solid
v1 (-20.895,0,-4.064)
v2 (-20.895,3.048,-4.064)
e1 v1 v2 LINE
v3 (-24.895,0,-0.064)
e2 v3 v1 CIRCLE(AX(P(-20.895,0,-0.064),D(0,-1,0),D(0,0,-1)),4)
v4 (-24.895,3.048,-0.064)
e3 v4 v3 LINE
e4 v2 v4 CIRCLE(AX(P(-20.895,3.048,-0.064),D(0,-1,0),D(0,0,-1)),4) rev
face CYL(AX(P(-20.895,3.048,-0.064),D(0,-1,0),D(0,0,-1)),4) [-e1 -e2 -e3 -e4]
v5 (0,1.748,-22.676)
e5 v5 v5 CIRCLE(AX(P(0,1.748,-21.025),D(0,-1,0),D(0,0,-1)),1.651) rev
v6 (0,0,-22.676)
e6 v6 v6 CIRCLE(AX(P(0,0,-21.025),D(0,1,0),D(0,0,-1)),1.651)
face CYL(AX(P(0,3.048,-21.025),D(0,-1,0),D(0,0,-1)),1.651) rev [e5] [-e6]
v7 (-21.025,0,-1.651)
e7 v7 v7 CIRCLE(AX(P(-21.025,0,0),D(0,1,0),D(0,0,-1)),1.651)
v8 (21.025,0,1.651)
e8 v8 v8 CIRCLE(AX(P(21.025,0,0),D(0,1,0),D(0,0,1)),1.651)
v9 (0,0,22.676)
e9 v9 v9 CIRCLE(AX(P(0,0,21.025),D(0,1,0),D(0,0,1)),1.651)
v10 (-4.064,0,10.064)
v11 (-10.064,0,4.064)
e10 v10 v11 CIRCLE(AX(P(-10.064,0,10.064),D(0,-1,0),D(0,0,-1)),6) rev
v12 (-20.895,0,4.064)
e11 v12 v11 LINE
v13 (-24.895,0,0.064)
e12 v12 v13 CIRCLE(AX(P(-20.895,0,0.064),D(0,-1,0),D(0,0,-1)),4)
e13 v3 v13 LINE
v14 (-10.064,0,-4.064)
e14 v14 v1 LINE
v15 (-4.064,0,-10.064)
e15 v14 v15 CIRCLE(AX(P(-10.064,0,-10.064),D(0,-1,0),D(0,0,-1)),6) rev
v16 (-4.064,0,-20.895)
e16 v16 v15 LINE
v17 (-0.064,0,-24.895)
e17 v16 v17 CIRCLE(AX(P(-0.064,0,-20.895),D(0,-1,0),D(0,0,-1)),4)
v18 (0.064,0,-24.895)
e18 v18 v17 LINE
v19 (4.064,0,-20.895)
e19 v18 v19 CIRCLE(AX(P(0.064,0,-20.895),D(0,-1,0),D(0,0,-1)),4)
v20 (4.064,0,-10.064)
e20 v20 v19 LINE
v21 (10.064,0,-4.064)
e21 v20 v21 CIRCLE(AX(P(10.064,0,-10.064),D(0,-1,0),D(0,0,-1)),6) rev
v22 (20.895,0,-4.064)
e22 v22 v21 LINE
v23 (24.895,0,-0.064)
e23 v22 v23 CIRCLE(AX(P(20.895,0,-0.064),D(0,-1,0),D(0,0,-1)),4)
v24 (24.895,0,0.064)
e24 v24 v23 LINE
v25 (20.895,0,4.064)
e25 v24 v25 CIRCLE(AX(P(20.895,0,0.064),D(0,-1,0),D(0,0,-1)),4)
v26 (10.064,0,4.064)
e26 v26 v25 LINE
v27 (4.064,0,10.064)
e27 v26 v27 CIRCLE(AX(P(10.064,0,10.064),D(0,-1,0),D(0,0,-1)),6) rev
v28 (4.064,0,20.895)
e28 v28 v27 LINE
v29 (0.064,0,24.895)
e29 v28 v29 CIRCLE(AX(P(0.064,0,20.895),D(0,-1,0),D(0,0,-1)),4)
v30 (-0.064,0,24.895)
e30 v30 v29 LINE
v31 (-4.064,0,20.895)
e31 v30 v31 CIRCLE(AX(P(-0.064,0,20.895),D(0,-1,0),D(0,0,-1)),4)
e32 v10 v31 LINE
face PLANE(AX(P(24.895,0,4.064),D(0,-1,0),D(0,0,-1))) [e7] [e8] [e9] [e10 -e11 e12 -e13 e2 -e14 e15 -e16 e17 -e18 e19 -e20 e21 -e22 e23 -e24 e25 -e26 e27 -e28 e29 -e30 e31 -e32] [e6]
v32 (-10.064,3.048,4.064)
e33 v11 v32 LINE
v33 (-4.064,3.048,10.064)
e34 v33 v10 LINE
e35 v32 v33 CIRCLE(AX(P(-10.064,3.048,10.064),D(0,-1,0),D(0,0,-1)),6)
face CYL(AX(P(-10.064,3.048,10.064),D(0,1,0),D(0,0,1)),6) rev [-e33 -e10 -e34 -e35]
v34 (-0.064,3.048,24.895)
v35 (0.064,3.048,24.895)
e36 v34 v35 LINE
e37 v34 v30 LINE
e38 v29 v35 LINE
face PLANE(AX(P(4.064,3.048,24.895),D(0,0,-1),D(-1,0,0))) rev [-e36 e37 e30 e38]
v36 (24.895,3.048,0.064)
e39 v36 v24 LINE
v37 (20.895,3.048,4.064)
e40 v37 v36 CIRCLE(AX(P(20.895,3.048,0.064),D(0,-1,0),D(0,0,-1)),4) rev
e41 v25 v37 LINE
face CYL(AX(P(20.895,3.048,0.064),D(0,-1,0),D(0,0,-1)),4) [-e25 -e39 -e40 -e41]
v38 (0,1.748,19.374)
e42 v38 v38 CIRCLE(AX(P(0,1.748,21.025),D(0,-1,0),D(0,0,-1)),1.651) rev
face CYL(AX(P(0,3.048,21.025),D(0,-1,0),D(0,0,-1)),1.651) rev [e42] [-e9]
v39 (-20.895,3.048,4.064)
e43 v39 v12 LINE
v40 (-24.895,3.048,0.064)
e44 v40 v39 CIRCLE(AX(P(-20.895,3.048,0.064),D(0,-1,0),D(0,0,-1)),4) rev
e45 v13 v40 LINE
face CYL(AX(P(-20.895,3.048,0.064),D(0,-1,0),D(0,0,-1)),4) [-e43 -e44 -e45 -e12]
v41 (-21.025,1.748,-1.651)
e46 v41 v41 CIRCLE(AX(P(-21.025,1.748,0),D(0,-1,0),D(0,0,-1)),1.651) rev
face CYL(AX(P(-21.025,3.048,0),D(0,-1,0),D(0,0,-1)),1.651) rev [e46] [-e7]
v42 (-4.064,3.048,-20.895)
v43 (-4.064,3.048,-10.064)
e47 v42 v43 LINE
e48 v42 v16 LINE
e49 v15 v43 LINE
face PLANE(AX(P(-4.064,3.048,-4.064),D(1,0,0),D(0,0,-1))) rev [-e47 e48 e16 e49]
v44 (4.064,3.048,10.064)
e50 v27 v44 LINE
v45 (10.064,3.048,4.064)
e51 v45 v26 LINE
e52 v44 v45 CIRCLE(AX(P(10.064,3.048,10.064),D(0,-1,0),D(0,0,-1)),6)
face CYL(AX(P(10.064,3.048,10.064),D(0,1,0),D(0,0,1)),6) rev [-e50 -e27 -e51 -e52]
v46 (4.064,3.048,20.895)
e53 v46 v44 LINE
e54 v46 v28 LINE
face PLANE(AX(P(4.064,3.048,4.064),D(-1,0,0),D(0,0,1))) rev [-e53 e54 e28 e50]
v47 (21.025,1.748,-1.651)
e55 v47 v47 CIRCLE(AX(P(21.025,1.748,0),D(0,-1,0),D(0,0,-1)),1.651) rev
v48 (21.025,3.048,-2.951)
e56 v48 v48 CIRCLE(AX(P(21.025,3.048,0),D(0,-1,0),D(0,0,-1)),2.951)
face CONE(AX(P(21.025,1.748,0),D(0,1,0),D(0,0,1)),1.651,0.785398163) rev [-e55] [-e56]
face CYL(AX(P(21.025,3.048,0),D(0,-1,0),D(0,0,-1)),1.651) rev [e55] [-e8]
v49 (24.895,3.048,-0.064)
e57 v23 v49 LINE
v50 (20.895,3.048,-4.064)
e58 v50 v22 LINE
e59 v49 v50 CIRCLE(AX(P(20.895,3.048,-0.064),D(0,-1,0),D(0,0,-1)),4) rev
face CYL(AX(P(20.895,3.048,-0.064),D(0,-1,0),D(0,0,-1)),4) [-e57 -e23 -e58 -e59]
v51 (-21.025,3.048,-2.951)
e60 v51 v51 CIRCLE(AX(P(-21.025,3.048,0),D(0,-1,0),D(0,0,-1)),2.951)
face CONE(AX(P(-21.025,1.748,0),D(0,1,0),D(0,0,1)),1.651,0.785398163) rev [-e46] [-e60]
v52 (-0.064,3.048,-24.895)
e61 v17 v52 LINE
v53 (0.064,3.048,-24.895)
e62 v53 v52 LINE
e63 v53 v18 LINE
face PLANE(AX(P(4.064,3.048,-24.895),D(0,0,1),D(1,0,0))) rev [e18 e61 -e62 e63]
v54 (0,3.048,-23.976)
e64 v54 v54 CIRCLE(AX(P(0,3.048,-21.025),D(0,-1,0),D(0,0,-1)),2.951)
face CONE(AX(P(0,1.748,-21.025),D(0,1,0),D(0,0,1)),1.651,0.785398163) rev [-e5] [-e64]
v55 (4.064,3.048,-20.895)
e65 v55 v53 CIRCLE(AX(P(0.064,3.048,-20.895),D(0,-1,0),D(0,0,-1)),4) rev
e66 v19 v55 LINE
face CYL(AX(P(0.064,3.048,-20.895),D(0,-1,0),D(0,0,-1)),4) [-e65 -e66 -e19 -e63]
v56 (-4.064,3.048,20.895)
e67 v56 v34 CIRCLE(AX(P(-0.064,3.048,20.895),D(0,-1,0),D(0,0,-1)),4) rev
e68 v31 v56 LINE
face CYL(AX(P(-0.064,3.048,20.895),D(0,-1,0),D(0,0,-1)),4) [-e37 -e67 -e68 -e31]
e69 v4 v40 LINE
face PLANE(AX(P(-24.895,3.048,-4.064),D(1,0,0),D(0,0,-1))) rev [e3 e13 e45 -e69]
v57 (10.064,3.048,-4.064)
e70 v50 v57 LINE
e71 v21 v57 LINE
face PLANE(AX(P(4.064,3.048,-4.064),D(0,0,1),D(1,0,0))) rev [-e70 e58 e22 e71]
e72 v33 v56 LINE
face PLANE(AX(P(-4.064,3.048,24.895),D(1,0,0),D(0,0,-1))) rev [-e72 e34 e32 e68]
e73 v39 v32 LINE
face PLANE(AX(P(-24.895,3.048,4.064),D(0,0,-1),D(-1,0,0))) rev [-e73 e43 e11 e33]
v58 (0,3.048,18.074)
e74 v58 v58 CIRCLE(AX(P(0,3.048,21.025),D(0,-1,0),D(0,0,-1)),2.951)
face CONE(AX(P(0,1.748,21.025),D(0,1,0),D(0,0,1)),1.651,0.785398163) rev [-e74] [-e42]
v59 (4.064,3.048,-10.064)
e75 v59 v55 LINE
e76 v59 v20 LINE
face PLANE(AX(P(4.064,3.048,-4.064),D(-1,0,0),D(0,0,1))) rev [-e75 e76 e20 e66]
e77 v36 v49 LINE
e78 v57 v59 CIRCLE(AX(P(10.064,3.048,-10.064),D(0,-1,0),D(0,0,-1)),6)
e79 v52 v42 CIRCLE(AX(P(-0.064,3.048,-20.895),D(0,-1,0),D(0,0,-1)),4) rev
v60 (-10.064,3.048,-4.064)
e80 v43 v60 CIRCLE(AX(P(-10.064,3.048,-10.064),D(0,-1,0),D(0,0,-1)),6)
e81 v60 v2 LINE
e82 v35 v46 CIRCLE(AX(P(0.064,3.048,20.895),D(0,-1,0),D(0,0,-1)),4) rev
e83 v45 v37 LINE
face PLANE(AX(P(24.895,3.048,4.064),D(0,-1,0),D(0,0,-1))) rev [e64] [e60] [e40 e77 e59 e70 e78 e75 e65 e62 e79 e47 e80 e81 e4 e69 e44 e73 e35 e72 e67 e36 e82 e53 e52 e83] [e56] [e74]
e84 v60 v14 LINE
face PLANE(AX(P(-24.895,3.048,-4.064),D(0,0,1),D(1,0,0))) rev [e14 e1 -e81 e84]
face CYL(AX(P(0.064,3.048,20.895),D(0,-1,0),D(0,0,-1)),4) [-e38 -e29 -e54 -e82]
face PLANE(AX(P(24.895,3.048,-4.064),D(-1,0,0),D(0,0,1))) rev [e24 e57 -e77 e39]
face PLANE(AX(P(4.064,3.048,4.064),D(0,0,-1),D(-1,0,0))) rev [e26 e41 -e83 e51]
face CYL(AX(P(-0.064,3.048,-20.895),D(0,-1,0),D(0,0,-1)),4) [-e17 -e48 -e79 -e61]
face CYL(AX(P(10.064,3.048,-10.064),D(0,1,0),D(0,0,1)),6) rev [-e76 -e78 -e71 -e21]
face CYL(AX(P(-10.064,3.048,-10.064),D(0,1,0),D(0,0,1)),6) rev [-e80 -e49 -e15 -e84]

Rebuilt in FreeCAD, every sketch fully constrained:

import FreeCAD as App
import Part
import Sketcher

V = App.Vector


def edges_at(feature, points):
    """Names of the edges that pass closest to the given points."""
    edges = feature.Shape.Edges
    near = lambda p: min(range(len(edges)), key=lambda i: edges[i].distToShape(Part.Vertex(*p))[0])
    return sorted({f"Edge{near(p) + 1}" for p in points})

doc = App.newDocument("Part")
params = doc.addObject("Spreadsheet::Sheet", "Params")
for row, (alias, value) in enumerate([
    ("pad1_length", "3.048 mm"),
    ("fillet_radius", "4 mm"),
    ("chamfer_size", "1.3 mm"),
    ("fillet2_radius", "6 mm"),
], start=1):
    params.set(f"A{row}", alias)
    params.set(f"B{row}", "=" + value)
    params.setAlias(f"B{row}", alias)

body = doc.addObject("PartDesign::Body", "Body")

# Sketch on XZ plane
sketch1 = body.newObject("Sketcher::SketchObject", "Sketch")
sketch1.AttachmentSupport = (doc.getObject("XZ_Plane"), [""])
sketch1.MapMode = "FlatFace"
sketch1.addGeometry([
    Part.LineSegment(V(-4.064, -4.064, 0), V(-24.895, -4.064, 0)),  # 0
    Part.LineSegment(V(-24.895, -4.064, 0), V(-24.895, 4.064, 0)),  # 1
    Part.LineSegment(V(-24.895, 4.064, 0), V(-4.064, 4.064, 0)),  # 2
    Part.LineSegment(V(-4.064, 4.064, 0), V(-4.064, 24.895, 0)),  # 3
    Part.LineSegment(V(-4.064, 24.895, 0), V(4.064, 24.895, 0)),  # 4
    Part.LineSegment(V(4.064, 24.895, 0), V(4.064, 4.064, 0)),  # 5
    Part.LineSegment(V(4.064, 4.064, 0), V(24.895, 4.064, 0)),  # 6
    Part.LineSegment(V(24.895, 4.064, 0), V(24.895, -4.064, 0)),  # 7
    Part.LineSegment(V(24.895, -4.064, 0), V(4.064, -4.064, 0)),  # 8
    Part.LineSegment(V(4.064, -4.064, 0), V(4.064, -24.895, 0)),  # 9
    Part.LineSegment(V(4.064, -24.895, 0), V(-4.064, -24.895, 0)),  # 10
    Part.LineSegment(V(-4.064, -24.895, 0), V(-4.064, -4.064, 0)),  # 11
    Part.Circle(V(0, 21.025, 0), V(0, 0, 1), 1.651),  # 12
    Part.Circle(V(21.025, 0, 0), V(0, 0, 1), 1.651),  # 13
    Part.Circle(V(-21.025, 0, 0), V(0, 0, 1), 1.651),  # 14
    Part.Circle(V(0, -21.025, 0), V(0, 0, 1), 1.651),  # 15
], False)
sketch1.addConstraint([
    Sketcher.Constraint("Coincident", 0, 2, 1, 1),
    Sketcher.Constraint("Coincident", 1, 2, 2, 1),
    Sketcher.Constraint("Coincident", 2, 2, 3, 1),
    Sketcher.Constraint("Coincident", 3, 2, 4, 1),
    Sketcher.Constraint("Coincident", 4, 2, 5, 1),
    Sketcher.Constraint("Coincident", 5, 2, 6, 1),
    Sketcher.Constraint("Coincident", 6, 2, 7, 1),
    Sketcher.Constraint("Coincident", 7, 2, 8, 1),
    Sketcher.Constraint("Coincident", 8, 2, 9, 1),
    Sketcher.Constraint("Coincident", 9, 2, 10, 1),
    Sketcher.Constraint("Coincident", 10, 2, 11, 1),
    Sketcher.Constraint("Coincident", 11, 2, 0, 1),
    Sketcher.Constraint("Horizontal", 0),
    Sketcher.Constraint("Vertical", 1),
    Sketcher.Constraint("Horizontal", 2),
    Sketcher.Constraint("Vertical", 3),
    Sketcher.Constraint("Horizontal", 4),
    Sketcher.Constraint("Vertical", 5),
    Sketcher.Constraint("Horizontal", 6),
    Sketcher.Constraint("Vertical", 7),
    Sketcher.Constraint("Horizontal", 8),
    Sketcher.Constraint("Vertical", 9),
    Sketcher.Constraint("Horizontal", 10),
    Sketcher.Constraint("Vertical", 11),
    Sketcher.Constraint("Equal", 12, 13),
    Sketcher.Constraint("Equal", 13, 14),
    Sketcher.Constraint("Equal", 14, 15),
    Sketcher.Constraint("Symmetric", 13, 3, 14, 3, -1, 1),
    Sketcher.Constraint("Symmetric", 12, 3, 15, 3, -1, 1),
    Sketcher.Constraint("Symmetric", 0, 2, 6, 2, -1, 1),
    Sketcher.Constraint("Symmetric", 2, 2, 8, 2, -1, 1),
    Sketcher.Constraint("Symmetric", 4, 2, 10, 2, -1, 1),
    Sketcher.Constraint("Symmetric", 2, 2, 5, 2, -2),
    Sketcher.Constraint("PointOnObject", 12, 3, -2),
    Sketcher.Constraint("PointOnObject", 13, 3, -1),
    Sketcher.Constraint("Equal", 10, 1),
    Sketcher.Constraint("Equal", 8, 3),
    Sketcher.Constraint("Diameter", 12, 3.302),
    Sketcher.Constraint("DistanceX", 0, 2, 0, 1, 20.831),
    Sketcher.Constraint("DistanceX", 4, 1, 4, 2, 8.128),
    Sketcher.Constraint("DistanceX", 14, 3, 13, 3, 42.05),
    Sketcher.Constraint("DistanceY", 15, 3, 12, 3, 42.05),
])
pad1 = body.newObject("PartDesign::Pad", "Pad")
pad1.Profile = sketch1
pad1.setExpression("Length", "Params.pad1_length")
pad1.Reversed = True
doc.recompute()

fillet = body.newObject("PartDesign::Fillet", "Fillet")
fillet.Base = (pad1, edges_at(pad1, [
    (4.064, 1.524, 24.895),
    (-4.064, 1.524, 24.895),
    (-24.895, 1.524, 4.064),
    (-24.895, 1.524, -4.064),
    (-4.064, 1.524, -24.895),
    (4.064, 1.524, -24.895),
    (24.895, 1.524, -4.064),
    (24.895, 1.524, 4.064),
]))
fillet.setExpression("Radius", "Params.fillet_radius")
doc.recompute()

chamfer = body.newObject("PartDesign::Chamfer", "Chamfer")
chamfer.Base = (fillet, edges_at(fillet, [
    (19.374, 3.048, 0),
    (-1.651, 3.048, -21.025),
    (-22.676, 3.048, 0),
    (-1.651, 3.048, 21.025),
]))
chamfer.setExpression("Size", "Params.chamfer_size")
doc.recompute()

fillet2 = body.newObject("PartDesign::Fillet", "Fillet001")
fillet2.Base = (chamfer, edges_at(chamfer, [
    (4.064, 1.524, 4.064),
    (-4.064, 1.524, 4.064),
    (-4.064, 1.524, -4.064),
    (4.064, 1.524, -4.064),
]))
fillet2.setExpression("Radius", "Params.fillet2_radius")

doc.recompute()
